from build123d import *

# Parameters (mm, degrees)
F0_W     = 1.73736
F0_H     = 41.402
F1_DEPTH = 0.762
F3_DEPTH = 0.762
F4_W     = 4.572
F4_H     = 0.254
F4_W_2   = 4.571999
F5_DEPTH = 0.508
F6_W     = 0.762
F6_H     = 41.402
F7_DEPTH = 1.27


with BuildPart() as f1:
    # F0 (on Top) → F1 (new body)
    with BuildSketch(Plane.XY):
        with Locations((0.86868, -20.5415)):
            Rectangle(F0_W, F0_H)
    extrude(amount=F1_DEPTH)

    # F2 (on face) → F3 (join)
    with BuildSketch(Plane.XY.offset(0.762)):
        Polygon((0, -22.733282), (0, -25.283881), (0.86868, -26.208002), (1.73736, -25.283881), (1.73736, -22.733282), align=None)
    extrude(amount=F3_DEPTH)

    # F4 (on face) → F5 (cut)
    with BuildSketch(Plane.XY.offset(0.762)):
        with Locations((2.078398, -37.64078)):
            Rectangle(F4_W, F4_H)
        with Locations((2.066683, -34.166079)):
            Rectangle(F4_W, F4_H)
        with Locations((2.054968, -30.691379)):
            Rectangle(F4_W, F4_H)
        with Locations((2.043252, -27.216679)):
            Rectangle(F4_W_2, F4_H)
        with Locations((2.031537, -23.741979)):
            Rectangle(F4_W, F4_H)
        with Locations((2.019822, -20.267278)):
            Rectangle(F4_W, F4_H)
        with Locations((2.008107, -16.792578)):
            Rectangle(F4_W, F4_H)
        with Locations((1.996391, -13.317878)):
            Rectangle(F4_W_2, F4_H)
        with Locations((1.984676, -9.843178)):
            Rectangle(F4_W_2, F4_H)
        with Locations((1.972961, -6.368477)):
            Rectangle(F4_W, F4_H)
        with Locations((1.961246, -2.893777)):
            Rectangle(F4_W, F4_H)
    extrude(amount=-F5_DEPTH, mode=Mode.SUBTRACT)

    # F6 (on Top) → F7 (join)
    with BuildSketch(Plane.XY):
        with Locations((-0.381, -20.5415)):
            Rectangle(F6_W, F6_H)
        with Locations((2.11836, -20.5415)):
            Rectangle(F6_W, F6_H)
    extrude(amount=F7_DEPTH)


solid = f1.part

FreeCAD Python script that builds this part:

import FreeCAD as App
import Part
import Sketcher
from FreeCAD import Vector
Q = App.Units.Quantity


def add_polygon(sketch, points):
    """Adds a closed chain of lines whose ends are joined by coincident constraints."""
    first, n = sketch.GeometryCount, len(points)
    for a, b in zip(points, points[1:] + points[:1]):
        sketch.addGeometry(Part.LineSegment(App.Vector(*a, 0), App.Vector(*b, 0)), False)
    for i in range(n):
        sketch.addConstraint(Sketcher.Constraint("Coincident", first + i, 2, first + (i + 1) % n, 1))

doc = App.newDocument("Part")
params = doc.addObject("Spreadsheet::Sheet", "Params")
for row, (alias, value) in enumerate([
    ("sketch1_height", "1.63 in"),
    ("pad1_length", "0.03 in"),
    ("pad2_length", "0.03 in"),
    ("sketch3_width", "0.18 in"),
    ("sketch3_height", "0.01 in"),
    ("pocket1_length", "0.02 in"),
    ("sketch4_width", "0.03 in"),
    ("sketch4_height", "1.63 in"),
    ("pad3_length", "0.05 in"),
], start=1):
    params.set(f"A{row}", alias)
    params.set(f"B{row}", "=" + value)
    params.setAlias(f"B{row}", alias)

body = doc.addObject("PartDesign::Body", "Body")

# Sketch on XY plane
sketch1 = body.newObject("Sketcher::SketchObject", "Sketch")
sketch1.AttachmentSupport = (doc.getObject("XY_Plane"), [""])
sketch1.MapMode = "FlatFace"
add_polygon(sketch1, [(0, 0.2), (0, -41.2), (1.7, -41.2), (1.7, 0.2)])  # lines 0-3
sketch1.addConstraint(Sketcher.Constraint("Vertical", 0))
sketch1.addConstraint(Sketcher.Constraint("Horizontal", 1))
sketch1.addConstraint(Sketcher.Constraint("Vertical", 2))
sketch1.addConstraint(Sketcher.Constraint("Horizontal", 3))
sketch1.addConstraint(Sketcher.Constraint("PointOnObject", 0, 2, -2))
sketch1.addConstraint(Sketcher.Constraint("DistanceY", 0, 2, 0, 1, Q("1.63 in")))
sketch1.addConstraint(Sketcher.Constraint("DistanceX", 1, 1, 1, 2, Q("0.0684 in")))
sketch1.addConstraint(Sketcher.Constraint("DistanceY", 0, 2, -1, 1, Q("41.2425 mm")))
sketch1.setExpression("Constraints[9]", "Params.sketch1_height")
pad1 = body.newObject("PartDesign::Pad", "Pad")
pad1.Profile = sketch1
pad1.setExpression("Length", "Params.pad1_length")

# Sketch on XY plane
sketch2 = body.newObject("Sketcher::SketchObject", "Sketch001")
sketch2.AttachmentSupport = (doc.getObject("XY_Plane"), [""])
sketch2.MapMode = "FlatFace"
sketch2.AttachmentOffset = App.Placement(Vector(0, 0, 0.03 * 25.4), App.Rotation())
add_polygon(sketch2, [(0, -22.7), (0, -25.3), (0.9, -26.2), (1.7, -25.3), (1.7, -22.7)])  # lines 0-4
sketch2.addConstraint(Sketcher.Constraint("Vertical", 0))
sketch2.addConstraint(Sketcher.Constraint("Vertical", 3))
sketch2.addConstraint(Sketcher.Constraint("Horizontal", 4))
sketch2.addConstraint(Sketcher.Constraint("PointOnObject", 0, 2, -2))
sketch2.addConstraint(Sketcher.Constraint("Horizontal", 0, 2, 2, 2))
sketch2.addConstraint(Sketcher.Constraint("Equal", 1, 2))
sketch2.addConstraint(Sketcher.Constraint("DistanceX", 4, 2, 4, 1, Q("0.0684 in")))
sketch2.addConstraint(Sketcher.Constraint("DistanceY", 0, 2, 0, 1, Q("2.550599 mm")))
sketch2.addConstraint(Sketcher.Constraint("DistanceY", 1, 2, 3, 2, Q("0.1368 in")))
sketch2.addConstraint(Sketcher.Constraint("DistanceY", 0, 2, -1, 1, Q("25.283881 mm")))
pad2 = body.newObject("PartDesign::Pad", "Pad001")
pad2.Profile = sketch2
pad2.setExpression("Length", "Params.pad2_length")

# Sketch on XY plane
sketch3 = body.newObject("Sketcher::SketchObject", "Sketch002")
sketch3.AttachmentSupport = (doc.getObject("XY_Plane"), [""])
sketch3.MapMode = "FlatFace"
sketch3.AttachmentOffset = App.Placement(Vector(0, 0, 0.03 * 25.4), App.Rotation())
add_polygon(sketch3, [(-0.21, -37.51), (-0.21, -37.77), (4.36, -37.77), (4.36, -37.51)])  # lines 0-3
add_polygon(sketch3, [(-0.22, -34.04), (-0.22, -34.29), (4.35, -34.29), (4.35, -34.04)])  # lines 4-7
add_polygon(sketch3, [(-0.23, -30.56), (-0.23, -30.82), (4.34, -30.82), (4.34, -30.56)])  # lines 8-11
add_polygon(sketch3, [(-0.24, -27.09), (-0.24, -27.34), (4.33, -27.34), (4.33, -27.09)])  # lines 12-15
add_polygon(sketch3, [(-0.25, -23.61), (-0.25, -23.87), (4.32, -23.87), (4.32, -23.61)])  # lines 16-19
add_polygon(sketch3, [(-0.27, -20.14), (-0.27, -20.39), (4.31, -20.39), (4.31, -20.14)])  # lines 20-23
add_polygon(sketch3, [(-0.28, -16.67), (-0.28, -16.92), (4.29, -16.92), (4.29, -16.67)])  # lines 24-27
add_polygon(sketch3, [(-0.29, -13.19), (-0.29, -13.44), (4.28, -13.44), (4.28, -13.19)])  # lines 28-31
add_polygon(sketch3, [(-0.3, -9.72), (-0.3, -9.97), (4.27, -9.97), (4.27, -9.72)])  # lines 32-35
add_polygon(sketch3, [(-0.31, -6.24), (-0.31, -6.5), (4.26, -6.5), (4.26, -6.24)])  # lines 36-39
add_polygon(sketch3, [(-0.32, -2.77), (-0.32, -3.02), (4.25, -3.02), (4.25, -2.77)])  # lines 40-43
sketch3.addConstraint(Sketcher.Constraint("Vertical", 0))
sketch3.addConstraint(Sketcher.Constraint("Horizontal", 1))
sketch3.addConstraint(Sketcher.Constraint("Vertical", 2))
sketch3.addConstraint(Sketcher.Constraint("Horizontal", 3))
sketch3.addConstraint(Sketcher.Constraint("Vertical", 4))
sketch3.addConstraint(Sketcher.Constraint("Horizontal", 5))
sketch3.addConstraint(Sketcher.Constraint("Vertical", 6))
sketch3.addConstraint(Sketcher.Constraint("Horizontal", 7))
sketch3.addConstraint(Sketcher.Constraint("Vertical", 8))
sketch3.addConstraint(Sketcher.Constraint("Horizontal", 9))
sketch3.addConstraint(Sketcher.Constraint("Vertical", 10))
sketch3.addConstraint(Sketcher.Constraint("Horizontal", 11))
sketch3.addConstraint(Sketcher.Constraint("Vertical", 12))
sketch3.addConstraint(Sketcher.Constraint("Horizontal", 13))
sketch3.addConstraint(Sketcher.Constraint("Vertical", 14))
sketch3.addConstraint(Sketcher.Constraint("Horizontal", 15))
sketch3.addConstraint(Sketcher.Constraint("Vertical", 16))
sketch3.addConstraint(Sketcher.Constraint("Horizontal", 17))
sketch3.addConstraint(Sketcher.Constraint("Vertical", 18))
sketch3.addConstraint(Sketcher.Constraint("Horizontal", 19))
sketch3.addConstraint(Sketcher.Constraint("Vertical", 20))
sketch3.addConstraint(Sketcher.Constraint("Horizontal", 21))
sketch3.addConstraint(Sketcher.Constraint("Vertical", 22))
sketch3.addConstraint(Sketcher.Constraint("Horizontal", 23))
sketch3.addConstraint(Sketcher.Constraint("Vertical", 24))
sketch3.addConstraint(Sketcher.Constraint("Horizontal", 25))
sketch3.addConstraint(Sketcher.Constraint("Vertical", 26))
sketch3.addConstraint(Sketcher.Constraint("Horizontal", 27))
sketch3.addConstraint(Sketcher.Constraint("Vertical", 28))
sketch3.addConstraint(Sketcher.Constraint("Horizontal", 29))
sketch3.addConstraint(Sketcher.Constraint("Vertical", 30))
sketch3.addConstraint(Sketcher.Constraint("Horizontal", 31))
sketch3.addConstraint(Sketcher.Constraint("Vertical", 32))
sketch3.addConstraint(Sketcher.Constraint("Horizontal", 33))
sketch3.addConstraint(Sketcher.Constraint("Vertical", 34))
sketch3.addConstraint(Sketcher.Constraint("Horizontal", 35))
sketch3.addConstraint(Sketcher.Constraint("Vertical", 36))
sketch3.addConstraint(Sketcher.Constraint("Horizontal", 37))
sketch3.addConstraint(Sketcher.Constraint("Vertical", 38))
sketch3.addConstraint(Sketcher.Constraint("Horizontal", 39))
sketch3.addConstraint(Sketcher.Constraint("Vertical", 40))
sketch3.addConstraint(Sketcher.Constraint("Horizontal", 41))
sketch3.addConstraint(Sketcher.Constraint("Vertical", 42))
sketch3.addConstraint(Sketcher.Constraint("Horizontal", 43))
sketch3.addConstraint(Sketcher.Constraint("Equal", 3, 5))
sketch3.addConstraint(Sketcher.Constraint("Equal", 7, 9))
sketch3.addConstraint(Sketcher.Constraint("Equal", 11, 13))
sketch3.addConstraint(Sketcher.Constraint("Equal", 15, 17))
sketch3.addConstraint(Sketcher.Constraint("Equal", 19, 21))
sketch3.addConstraint(Sketcher.Constraint("Equal", 23, 25))
sketch3.addConstraint(Sketcher.Constraint("Equal", 27, 29))
sketch3.addConstraint(Sketcher.Constraint("Equal", 31, 33))
sketch3.addConstraint(Sketcher.Constraint("Equal", 35, 37))
sketch3.addConstraint(Sketcher.Constraint("Equal", 39, 41))
sketch3.addConstraint(Sketcher.Constraint("Equal", 2, 4))
sketch3.addConstraint(Sketcher.Constraint("Equal", 6, 8))
sketch3.addConstraint(Sketcher.Constraint("Equal", 10, 12))
sketch3.addConstraint(Sketcher.Constraint("Equal", 14, 16))
sketch3.addConstraint(Sketcher.Constraint("Equal", 18, 20))
sketch3.addConstraint(Sketcher.Constraint("Equal", 22, 24))
sketch3.addConstraint(Sketcher.Constraint("Equal", 26, 28))
sketch3.addConstraint(Sketcher.Constraint("Equal", 30, 32))
sketch3.addConstraint(Sketcher.Constraint("Equal", 34, 36))
sketch3.addConstraint(Sketcher.Constraint("Equal", 38, 40))
sketch3.addConstraint(Sketcher.Constraint("DistanceX", 1, 1, 1, 2, Q("0.18 in")))
sketch3.addConstraint(Sketcher.Constraint("DistanceY", 0, 2, 0, 1, Q("0.01 in")))
sketch3.addConstraint(Sketcher.Constraint("DistanceX", -1, 1, 1, 2, Q("4.364398 mm")))
sketch3.addConstraint(Sketcher.Constraint("DistanceY", 3, 2, 4, 2, Q("3.220701 mm")))
sketch3.addConstraint(Sketcher.Constraint("DistanceY", 7, 2, 8, 2, Q("3.2207 mm")))
sketch3.addConstraint(Sketcher.Constraint("DistanceY", 11, 2, 12, 2, Q("3.2207 mm")))
sketch3.addConstraint(Sketcher.Constraint("DistanceY", 15, 2, 16, 2, Q("3.2207 mm")))
sketch3.addConstraint(Sketcher.Constraint("DistanceY", 19, 2, 20, 2, Q("3.220701 mm")))
sketch3.addConstraint(Sketcher.Constraint("DistanceY", 23, 2, 24, 2, Q("3.2207 mm")))
sketch3.addConstraint(Sketcher.Constraint("DistanceY", 27, 2, 28, 2, Q("3.2207 mm")))
sketch3.addConstraint(Sketcher.Constraint("DistanceY", 31, 2, 32, 2, Q("3.2207 mm")))
sketch3.addConstraint(Sketcher.Constraint("DistanceY", 35, 2, 36, 2, Q("3.220701 mm")))
sketch3.addConstraint(Sketcher.Constraint("DistanceY", 39, 2, 40, 2, Q("3.2207 mm")))
sketch3.addConstraint(Sketcher.Constraint("DistanceY", 0, 2, -1, 1, Q("37.76778 mm")))
sketch3.addConstraint(Sketcher.Constraint("DistanceX", 8, 2, -1, 1, Q("0.231032 mm")))
sketch3.addConstraint(Sketcher.Constraint("DistanceX", -1, 1, 13, 2, Q("4.329251 mm")))
sketch3.addConstraint(Sketcher.Constraint("DistanceX", 28, 2, -1, 1, Q("0.289608 mm")))
sketch3.addConstraint(Sketcher.Constraint("DistanceX", 36, 2, -1, 1, Q("0.313039 mm")))
sketch3.addConstraint(Sketcher.Constraint("DistanceX", 12, 2, 7, 2, Q("0.02343 mm")))
sketch3.addConstraint(Sketcher.Constraint("DistanceX", 16, 2, 11, 2, Q("0.023431 mm")))
sketch3.addConstraint(Sketcher.Constraint("DistanceX", 20, 2, 15, 2, Q("0.023431 mm")))
sketch3.addConstraint(Sketcher.Constraint("DistanceX", 24, 2, 19, 2, Q("0.02343 mm")))
sketch3.addConstraint(Sketcher.Constraint("DistanceX", 32, 2, 27, 2, Q("0.023431 mm")))
sketch3.addConstraint(Sketcher.Constraint("DistanceX", 40, 2, 35, 2, Q("0.02343 mm")))
sketch3.setExpression("Constraints[108]", "Params.sketch3_width")
sketch3.setExpression("Constraints[109]", "Params.sketch3_height")
pocket1 = body.newObject("PartDesign::Pocket", "Pocket")
pocket1.Profile = sketch3
pocket1.setExpression("Length", "Params.pocket1_length")

# Sketch on XY plane
sketch4 = body.newObject("Sketcher::SketchObject", "Sketch003")
sketch4.AttachmentSupport = (doc.getObject("XY_Plane"), [""])
sketch4.MapMode = "FlatFace"
add_polygon(sketch4, [(-0.8, 0.2), (-0.8, -41.2), (0, -41.2), (0, 0.2)])  # lines 0-3
add_polygon(sketch4, [(1.7, 0.2), (1.7, -41.2), (2.5, -41.2), (2.5, 0.2)])  # lines 4-7
sketch4.addConstraint(Sketcher.Constraint("Vertical", 0))
sketch4.addConstraint(Sketcher.Constraint("Horizontal", 1))
sketch4.addConstraint(Sketcher.Constraint("Vertical", 2))
sketch4.addConstraint(Sketcher.Constraint("Horizontal", 3))
sketch4.addConstraint(Sketcher.Constraint("Vertical", 4))
sketch4.addConstraint(Sketcher.Constraint("Horizontal", 5))
sketch4.addConstraint(Sketcher.Constraint("Vertical", 6))
sketch4.addConstraint(Sketcher.Constraint("Horizontal", 7))
sketch4.addConstraint(Sketcher.Constraint("PointOnObject", 1, 2, -2))
sketch4.addConstraint(Sketcher.Constraint("Horizontal", 1, 2, 4, 2))
sketch4.addConstraint(Sketcher.Constraint("Horizontal", 3, 2, 6, 2))
sketch4.addConstraint(Sketcher.Constraint("Equal", 3, 5))
sketch4.addConstraint(Sketcher.Constraint("DistanceX", 1, 1, 1, 2, Q("0.03 in")))
sketch4.addConstraint(Sketcher.Constraint("DistanceY", 0, 2, 0, 1, Q("1.63 in")))
sketch4.addConstraint(Sketcher.Constraint("DistanceX", -1, 1, 4, 2, Q("0.0684 in")))
sketch4.addConstraint(Sketcher.Constraint("DistanceY", 0, 2, -1, 1, Q("41.2425 mm")))
sketch4.setExpression("Constraints[20]", "Params.sketch4_width")
sketch4.setExpression("Constraints[21]", "Params.sketch4_height")
pad3 = body.newObject("PartDesign::Pad", "Pad002")
pad3.Profile = sketch4
pad3.setExpression("Length", "Params.pad3_length")

doc.recompute()
